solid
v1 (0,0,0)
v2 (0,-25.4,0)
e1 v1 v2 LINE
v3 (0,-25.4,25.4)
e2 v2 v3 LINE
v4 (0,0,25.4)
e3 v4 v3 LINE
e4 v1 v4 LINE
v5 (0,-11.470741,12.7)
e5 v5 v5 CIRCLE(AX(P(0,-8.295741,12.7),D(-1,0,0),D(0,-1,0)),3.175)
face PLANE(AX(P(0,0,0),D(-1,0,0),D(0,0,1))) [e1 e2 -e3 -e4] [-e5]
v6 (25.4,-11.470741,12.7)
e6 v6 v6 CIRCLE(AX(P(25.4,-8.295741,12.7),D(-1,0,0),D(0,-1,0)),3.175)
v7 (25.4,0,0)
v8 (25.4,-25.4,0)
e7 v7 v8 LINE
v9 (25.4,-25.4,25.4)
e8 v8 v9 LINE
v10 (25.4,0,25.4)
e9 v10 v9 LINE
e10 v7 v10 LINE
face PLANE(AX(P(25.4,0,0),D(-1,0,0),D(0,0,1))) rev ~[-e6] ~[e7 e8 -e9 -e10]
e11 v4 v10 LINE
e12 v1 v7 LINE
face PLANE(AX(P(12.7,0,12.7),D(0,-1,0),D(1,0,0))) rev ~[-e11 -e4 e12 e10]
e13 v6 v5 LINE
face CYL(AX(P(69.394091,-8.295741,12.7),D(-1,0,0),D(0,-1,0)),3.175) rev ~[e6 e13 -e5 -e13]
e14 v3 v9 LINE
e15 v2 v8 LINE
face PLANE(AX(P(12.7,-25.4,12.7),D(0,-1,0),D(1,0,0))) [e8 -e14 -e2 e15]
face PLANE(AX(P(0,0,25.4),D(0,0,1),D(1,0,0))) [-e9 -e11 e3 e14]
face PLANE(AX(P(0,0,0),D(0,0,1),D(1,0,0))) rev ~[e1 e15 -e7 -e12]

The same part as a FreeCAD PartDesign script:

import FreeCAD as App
import Part
import Sketcher

V = App.Vector
Q = App.Units.Quantity

doc = App.newDocument("Part")
params = doc.addObject("Spreadsheet::Sheet", "Params")
for row, (alias, value) in enumerate([
    ("sketch1_width", "1 in"),
    ("pad1_length", "1 in"),
    ("sketch2_diameter", "0.25 in"),
    ("hole_diameter", "0.25 in"),
], start=1):
    params.set(f"A{row}", alias)
    params.set(f"B{row}", "=" + value)
    params.setAlias(f"B{row}", alias)

body = doc.addObject("PartDesign::Body", "Body")

# Sketch on XZ plane
sketch1 = body.newObject("Sketcher::SketchObject", "Sketch")
sketch1.AttachmentSupport = (doc.getObject("XZ_Plane"), [""])
sketch1.MapMode = "FlatFace"
sketch1.addGeometry([
    Part.LineSegment(V(0, 25, 0), V(0, 0, 0)),
    Part.LineSegment(V(0, 0, 0), V(25, 0, 0)),
    Part.LineSegment(V(25, 0, 0), V(25, 25, 0)),
    Part.LineSegment(V(25, 25, 0), V(0, 25, 0)),
], False)
sketch1.addConstraint([
    Sketcher.Constraint("Coincident", 0, 2, 1, 1),
    Sketcher.Constraint("Coincident", 1, 2, 2, 1),
    Sketcher.Constraint("Coincident", 2, 2, 3, 1),
    Sketcher.Constraint("Coincident", 3, 2, 0, 1),
    Sketcher.Constraint("Vertical", 0),
    Sketcher.Constraint("Horizontal", 1),
    Sketcher.Constraint("Vertical", 2),
    Sketcher.Constraint("Horizontal", 3),
    Sketcher.Constraint("Coincident", 0, 2, -1, 1),
    Sketcher.Constraint("Equal", 3, 0),
    Sketcher.Constraint("DistanceX", 1, 1, 1, 2, Q("1 in")),
])
sketch1.setExpression("Constraints[10]", "Params.sketch1_width")
pad1 = body.newObject("PartDesign::Pad", "Pad")
pad1.Profile = sketch1
pad1.setExpression("Length", "Params.pad1_length")

# Sketch on YZ plane
sketch2 = body.newObject("Sketcher::SketchObject", "Sketch001")
sketch2.AttachmentSupport = (doc.getObject("YZ_Plane"), [""])
sketch2.MapMode = "FlatFace"
sketch2.AttachmentOffset = App.Placement(V(0, 0, 1 * 25.4), App.Rotation())
sketch2.addGeometry(Part.Circle(V(-8.3, 12.7, 0), V(0, 0, 1), 3.2), False)
sketch2.addConstraint([
    Sketcher.Constraint("Diameter", 0, Q("0.25 in")),
    Sketcher.Constraint("DistanceY", -1, 1, 0, 3, Q("0.5 in")),
    Sketcher.Constraint("DistanceX", 0, 3, -1, 1, 8.295741),
])
sketch2.setExpression("Constraints[0]", "Params.sketch2_diameter")
doc.recompute()
hole = body.newObject("PartDesign::Hole", "Hole")
hole.Profile = sketch2
hole.ThreadType = "None"
hole.setExpression("Diameter", "Params.hole_diameter")
hole.DepthType = "ThroughAll"

doc.recompute()
